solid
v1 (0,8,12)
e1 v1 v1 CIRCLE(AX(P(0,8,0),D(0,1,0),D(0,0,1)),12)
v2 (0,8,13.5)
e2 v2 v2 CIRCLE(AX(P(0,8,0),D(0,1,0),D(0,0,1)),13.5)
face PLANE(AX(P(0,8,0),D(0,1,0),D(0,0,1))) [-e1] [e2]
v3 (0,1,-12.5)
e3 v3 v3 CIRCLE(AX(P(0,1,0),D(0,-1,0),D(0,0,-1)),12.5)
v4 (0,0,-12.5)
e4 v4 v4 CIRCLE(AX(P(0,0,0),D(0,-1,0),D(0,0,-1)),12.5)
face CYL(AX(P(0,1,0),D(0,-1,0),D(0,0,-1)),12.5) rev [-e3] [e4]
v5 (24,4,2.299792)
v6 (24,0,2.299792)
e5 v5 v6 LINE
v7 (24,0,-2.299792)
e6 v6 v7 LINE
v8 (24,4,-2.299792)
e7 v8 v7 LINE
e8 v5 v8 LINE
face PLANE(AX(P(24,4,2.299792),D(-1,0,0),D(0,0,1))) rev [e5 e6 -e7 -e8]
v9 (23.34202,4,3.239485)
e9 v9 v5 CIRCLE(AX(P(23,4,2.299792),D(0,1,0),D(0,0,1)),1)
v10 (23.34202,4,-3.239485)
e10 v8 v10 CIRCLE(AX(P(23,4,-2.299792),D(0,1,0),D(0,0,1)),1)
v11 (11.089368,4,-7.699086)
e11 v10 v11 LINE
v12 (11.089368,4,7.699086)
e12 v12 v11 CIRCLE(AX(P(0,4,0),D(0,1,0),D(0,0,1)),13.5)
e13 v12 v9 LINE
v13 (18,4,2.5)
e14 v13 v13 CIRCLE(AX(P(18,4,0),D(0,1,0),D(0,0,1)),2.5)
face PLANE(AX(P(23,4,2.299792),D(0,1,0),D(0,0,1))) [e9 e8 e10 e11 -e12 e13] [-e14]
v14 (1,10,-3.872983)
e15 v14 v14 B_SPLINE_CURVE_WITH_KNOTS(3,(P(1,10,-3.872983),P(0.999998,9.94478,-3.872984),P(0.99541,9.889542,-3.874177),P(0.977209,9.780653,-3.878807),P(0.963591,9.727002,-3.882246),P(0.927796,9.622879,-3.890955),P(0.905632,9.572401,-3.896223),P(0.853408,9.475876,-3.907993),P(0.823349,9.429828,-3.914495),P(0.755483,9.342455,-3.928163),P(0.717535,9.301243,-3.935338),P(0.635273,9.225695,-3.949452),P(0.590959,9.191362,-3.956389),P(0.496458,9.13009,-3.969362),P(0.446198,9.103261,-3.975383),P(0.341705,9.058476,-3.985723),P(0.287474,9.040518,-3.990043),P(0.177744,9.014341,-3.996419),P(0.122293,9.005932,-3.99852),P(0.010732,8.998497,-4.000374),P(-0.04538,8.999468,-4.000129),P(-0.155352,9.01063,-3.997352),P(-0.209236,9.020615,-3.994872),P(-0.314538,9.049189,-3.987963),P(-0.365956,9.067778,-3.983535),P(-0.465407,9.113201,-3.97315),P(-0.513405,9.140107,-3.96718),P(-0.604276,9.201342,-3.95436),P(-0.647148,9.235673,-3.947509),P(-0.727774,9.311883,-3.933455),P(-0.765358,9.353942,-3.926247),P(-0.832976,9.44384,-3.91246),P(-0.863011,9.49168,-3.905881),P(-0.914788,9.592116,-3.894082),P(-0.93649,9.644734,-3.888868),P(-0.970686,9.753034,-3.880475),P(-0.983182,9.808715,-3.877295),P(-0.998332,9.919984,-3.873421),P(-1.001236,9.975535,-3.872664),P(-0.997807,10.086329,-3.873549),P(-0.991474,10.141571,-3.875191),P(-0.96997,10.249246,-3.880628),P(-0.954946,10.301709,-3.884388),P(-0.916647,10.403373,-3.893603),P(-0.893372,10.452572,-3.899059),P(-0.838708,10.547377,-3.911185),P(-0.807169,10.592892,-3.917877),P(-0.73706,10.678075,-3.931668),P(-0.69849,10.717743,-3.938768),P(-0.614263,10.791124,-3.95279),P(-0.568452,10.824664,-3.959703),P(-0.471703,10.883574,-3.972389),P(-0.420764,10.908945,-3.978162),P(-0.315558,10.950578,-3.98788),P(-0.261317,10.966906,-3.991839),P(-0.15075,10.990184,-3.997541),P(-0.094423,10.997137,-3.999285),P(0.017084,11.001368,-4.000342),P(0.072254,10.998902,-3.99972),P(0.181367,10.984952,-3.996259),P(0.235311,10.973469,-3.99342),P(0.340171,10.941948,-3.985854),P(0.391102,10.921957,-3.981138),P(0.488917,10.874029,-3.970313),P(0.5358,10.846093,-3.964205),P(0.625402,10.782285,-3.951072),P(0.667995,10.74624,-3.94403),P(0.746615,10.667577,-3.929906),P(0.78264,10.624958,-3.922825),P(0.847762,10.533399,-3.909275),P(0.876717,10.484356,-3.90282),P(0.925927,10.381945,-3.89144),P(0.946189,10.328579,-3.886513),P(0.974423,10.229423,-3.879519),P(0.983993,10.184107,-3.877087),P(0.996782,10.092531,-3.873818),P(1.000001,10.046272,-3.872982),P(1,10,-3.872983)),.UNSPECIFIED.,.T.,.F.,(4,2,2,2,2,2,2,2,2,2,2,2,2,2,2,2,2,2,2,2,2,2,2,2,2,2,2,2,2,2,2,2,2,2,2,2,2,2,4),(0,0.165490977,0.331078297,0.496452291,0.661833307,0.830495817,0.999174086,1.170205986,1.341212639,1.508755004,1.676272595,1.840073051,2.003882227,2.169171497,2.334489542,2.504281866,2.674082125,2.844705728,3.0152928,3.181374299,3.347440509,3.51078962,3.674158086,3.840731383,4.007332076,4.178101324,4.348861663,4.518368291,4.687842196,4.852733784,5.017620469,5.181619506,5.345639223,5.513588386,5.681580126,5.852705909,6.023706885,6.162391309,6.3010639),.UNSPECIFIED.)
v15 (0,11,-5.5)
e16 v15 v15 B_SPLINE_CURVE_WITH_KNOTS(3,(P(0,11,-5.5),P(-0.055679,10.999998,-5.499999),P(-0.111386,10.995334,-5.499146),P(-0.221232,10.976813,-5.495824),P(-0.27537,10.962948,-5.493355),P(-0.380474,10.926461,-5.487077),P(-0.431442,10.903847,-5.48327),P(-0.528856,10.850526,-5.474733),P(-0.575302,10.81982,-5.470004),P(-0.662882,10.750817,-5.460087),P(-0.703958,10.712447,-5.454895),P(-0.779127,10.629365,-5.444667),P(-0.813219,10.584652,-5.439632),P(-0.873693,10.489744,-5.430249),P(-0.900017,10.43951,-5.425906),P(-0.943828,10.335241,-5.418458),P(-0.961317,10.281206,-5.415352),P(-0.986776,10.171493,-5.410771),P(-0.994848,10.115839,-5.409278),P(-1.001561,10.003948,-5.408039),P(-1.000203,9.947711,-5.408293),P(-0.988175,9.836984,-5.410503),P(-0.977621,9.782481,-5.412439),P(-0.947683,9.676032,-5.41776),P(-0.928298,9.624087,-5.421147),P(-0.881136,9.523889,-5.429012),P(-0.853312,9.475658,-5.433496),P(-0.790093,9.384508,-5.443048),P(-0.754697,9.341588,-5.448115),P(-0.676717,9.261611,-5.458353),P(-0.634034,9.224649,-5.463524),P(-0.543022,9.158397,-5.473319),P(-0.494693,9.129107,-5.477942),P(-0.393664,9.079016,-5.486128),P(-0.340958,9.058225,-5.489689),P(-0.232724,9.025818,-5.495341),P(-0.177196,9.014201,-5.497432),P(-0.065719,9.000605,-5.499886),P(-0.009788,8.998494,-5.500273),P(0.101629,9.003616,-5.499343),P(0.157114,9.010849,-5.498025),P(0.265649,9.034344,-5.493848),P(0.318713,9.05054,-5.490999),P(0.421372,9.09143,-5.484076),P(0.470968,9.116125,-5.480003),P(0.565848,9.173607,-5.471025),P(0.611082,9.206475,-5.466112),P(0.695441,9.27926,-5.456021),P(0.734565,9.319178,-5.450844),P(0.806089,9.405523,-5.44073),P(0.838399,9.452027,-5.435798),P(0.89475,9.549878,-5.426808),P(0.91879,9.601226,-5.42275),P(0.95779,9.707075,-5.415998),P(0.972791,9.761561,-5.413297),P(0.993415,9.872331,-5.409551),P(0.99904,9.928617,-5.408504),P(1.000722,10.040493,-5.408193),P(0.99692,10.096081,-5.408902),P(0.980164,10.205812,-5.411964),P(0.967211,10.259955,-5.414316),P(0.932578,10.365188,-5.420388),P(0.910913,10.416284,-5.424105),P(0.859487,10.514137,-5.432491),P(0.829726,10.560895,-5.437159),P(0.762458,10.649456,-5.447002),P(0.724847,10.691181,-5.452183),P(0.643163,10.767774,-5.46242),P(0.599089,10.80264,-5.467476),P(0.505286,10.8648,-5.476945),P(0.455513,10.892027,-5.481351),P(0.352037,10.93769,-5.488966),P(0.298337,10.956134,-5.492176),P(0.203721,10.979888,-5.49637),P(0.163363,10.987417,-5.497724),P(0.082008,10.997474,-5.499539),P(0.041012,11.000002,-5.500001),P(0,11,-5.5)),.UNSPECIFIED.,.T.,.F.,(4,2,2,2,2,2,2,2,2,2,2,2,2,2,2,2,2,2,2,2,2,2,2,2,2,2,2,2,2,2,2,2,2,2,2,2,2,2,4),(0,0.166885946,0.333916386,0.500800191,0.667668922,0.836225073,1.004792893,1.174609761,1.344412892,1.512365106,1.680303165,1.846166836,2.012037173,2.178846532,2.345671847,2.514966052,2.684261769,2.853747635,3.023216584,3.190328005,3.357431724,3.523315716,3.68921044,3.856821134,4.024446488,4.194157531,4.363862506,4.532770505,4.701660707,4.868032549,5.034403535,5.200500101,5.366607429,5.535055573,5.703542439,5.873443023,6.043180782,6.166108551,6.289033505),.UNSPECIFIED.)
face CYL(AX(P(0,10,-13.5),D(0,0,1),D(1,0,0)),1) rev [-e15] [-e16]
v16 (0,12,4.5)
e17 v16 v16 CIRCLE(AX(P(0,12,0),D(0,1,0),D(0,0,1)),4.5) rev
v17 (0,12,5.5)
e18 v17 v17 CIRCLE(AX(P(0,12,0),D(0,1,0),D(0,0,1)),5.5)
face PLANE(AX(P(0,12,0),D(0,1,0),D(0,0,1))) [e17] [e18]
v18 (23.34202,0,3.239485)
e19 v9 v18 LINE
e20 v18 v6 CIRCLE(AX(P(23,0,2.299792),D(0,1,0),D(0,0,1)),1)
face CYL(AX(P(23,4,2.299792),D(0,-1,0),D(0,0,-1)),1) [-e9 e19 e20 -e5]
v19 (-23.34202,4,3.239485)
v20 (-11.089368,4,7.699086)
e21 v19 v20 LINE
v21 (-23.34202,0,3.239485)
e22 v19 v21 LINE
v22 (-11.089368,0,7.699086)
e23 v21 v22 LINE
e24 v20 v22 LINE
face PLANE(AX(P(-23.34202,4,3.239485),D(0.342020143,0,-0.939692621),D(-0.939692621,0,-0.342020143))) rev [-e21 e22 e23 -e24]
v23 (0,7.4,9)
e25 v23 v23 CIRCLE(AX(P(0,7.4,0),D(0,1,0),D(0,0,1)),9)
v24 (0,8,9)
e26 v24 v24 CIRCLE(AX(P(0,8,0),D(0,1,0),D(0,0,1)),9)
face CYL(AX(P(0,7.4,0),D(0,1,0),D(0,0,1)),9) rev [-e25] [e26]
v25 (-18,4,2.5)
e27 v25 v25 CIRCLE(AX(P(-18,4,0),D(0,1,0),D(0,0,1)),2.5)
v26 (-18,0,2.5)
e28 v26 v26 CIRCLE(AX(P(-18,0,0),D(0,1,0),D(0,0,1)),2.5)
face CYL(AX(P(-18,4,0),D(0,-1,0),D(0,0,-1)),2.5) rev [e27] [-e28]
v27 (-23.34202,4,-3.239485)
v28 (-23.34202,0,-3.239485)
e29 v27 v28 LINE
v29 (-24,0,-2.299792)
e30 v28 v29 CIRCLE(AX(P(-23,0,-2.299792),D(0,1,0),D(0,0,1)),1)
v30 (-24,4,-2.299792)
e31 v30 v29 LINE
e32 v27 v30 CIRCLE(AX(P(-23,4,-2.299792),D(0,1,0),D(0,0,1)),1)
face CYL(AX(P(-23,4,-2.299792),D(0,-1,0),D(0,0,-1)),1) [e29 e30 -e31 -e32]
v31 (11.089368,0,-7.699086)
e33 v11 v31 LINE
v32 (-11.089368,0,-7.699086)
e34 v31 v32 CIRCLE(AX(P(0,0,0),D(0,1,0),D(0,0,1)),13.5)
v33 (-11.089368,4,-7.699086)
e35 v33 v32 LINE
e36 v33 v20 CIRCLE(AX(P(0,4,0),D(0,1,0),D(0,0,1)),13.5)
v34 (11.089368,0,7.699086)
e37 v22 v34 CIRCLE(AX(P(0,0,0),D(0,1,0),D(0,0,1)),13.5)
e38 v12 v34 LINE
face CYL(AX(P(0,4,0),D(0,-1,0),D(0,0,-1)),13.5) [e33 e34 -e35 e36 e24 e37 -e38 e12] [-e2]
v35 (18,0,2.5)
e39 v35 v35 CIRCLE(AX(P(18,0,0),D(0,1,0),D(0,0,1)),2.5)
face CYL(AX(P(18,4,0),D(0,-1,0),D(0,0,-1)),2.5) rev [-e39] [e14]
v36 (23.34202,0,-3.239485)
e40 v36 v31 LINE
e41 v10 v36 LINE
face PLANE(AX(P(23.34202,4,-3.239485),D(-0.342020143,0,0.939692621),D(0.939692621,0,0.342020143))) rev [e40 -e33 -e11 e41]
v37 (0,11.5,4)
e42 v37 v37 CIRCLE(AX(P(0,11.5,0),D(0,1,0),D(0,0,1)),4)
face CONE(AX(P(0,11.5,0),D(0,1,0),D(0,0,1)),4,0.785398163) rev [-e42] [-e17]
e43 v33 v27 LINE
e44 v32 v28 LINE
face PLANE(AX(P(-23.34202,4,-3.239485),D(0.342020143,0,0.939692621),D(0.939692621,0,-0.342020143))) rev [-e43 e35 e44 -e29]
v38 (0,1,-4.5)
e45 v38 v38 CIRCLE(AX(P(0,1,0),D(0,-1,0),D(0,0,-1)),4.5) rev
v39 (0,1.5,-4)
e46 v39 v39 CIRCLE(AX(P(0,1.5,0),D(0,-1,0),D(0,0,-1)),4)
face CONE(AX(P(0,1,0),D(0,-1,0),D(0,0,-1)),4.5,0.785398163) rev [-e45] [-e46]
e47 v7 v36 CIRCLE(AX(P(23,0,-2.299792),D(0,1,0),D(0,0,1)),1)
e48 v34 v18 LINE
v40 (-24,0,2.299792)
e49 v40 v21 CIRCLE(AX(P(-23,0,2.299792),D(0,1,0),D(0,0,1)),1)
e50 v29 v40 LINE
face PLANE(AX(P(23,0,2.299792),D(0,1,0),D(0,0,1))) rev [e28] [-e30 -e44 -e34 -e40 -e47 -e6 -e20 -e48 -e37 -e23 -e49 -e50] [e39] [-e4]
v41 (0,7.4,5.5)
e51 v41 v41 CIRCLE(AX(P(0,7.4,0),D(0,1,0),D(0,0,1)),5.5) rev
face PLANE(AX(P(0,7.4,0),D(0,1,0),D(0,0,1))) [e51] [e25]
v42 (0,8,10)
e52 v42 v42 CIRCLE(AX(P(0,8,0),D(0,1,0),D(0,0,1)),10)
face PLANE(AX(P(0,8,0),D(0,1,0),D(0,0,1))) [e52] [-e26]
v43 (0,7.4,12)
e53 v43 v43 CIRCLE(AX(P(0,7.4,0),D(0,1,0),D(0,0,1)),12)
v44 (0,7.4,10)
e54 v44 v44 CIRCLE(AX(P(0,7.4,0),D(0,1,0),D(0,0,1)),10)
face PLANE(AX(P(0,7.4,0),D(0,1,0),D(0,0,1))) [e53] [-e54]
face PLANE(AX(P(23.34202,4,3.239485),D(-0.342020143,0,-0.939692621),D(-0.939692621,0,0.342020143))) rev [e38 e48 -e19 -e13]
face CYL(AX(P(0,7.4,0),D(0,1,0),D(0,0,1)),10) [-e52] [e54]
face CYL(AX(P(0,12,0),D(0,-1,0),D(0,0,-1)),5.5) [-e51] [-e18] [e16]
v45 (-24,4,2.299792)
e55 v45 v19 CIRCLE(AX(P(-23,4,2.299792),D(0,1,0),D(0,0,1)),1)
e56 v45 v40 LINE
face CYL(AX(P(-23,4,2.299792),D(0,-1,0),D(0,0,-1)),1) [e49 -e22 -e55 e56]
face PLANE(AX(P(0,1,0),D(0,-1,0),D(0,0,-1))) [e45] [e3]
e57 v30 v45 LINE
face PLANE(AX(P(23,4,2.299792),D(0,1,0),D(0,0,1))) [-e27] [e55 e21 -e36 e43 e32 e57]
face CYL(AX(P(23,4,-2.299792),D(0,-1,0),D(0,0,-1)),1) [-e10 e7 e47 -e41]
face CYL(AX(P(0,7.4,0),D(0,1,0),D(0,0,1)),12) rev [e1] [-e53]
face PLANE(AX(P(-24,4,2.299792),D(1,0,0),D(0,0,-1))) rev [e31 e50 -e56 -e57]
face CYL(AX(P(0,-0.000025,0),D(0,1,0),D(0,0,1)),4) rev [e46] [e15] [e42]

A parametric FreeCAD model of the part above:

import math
import FreeCAD as App
import Part
import Sketcher

V = App.Vector
Q = App.Units.Quantity


def edges_at(feature, points):
    """Names of the edges that pass closest to the given points."""
    edges = feature.Shape.Edges
    near = lambda p: min(range(len(edges)), key=lambda i: edges[i].distToShape(Part.Vertex(*p))[0])
    return sorted({f"Edge{near(p) + 1}" for p in points})

doc = App.newDocument("Part")
body = doc.addObject("PartDesign::Body", "Body")

# Sketch on XZ plane
sketch1 = body.newObject("Sketcher::SketchObject", "Sketch")
sketch1.AttachmentSupport = (doc.getObject("XZ_Plane"), [""])
sketch1.MapMode = "FlatFace"
sketch1.addGeometry(Part.LineSegment(V(24, 2.299792, 0), V(24, -2.299792, 0)), False)
sketch1.addGeometry(Part.ArcOfCircle(Part.Circle(V(23, -2.299792, 0), V(0, 0, 1), 1), math.radians(-70), math.radians(0)), False)
sketch1.addGeometry(Part.LineSegment(V(23.34202, -3.239485, 0), V(11.089368, -7.699086, 0)), False)
sketch1.addGeometry(Part.ArcOfCircle(Part.Circle(V(0, 0, 0), V(0, 0, 1), 13.5), math.radians(-145.228666), math.radians(-34.771334)), False)
sketch1.addGeometry(Part.LineSegment(V(-11.089368, -7.699086, 0), V(-23.34202, -3.239485, 0)), False)
sketch1.addGeometry(Part.ArcOfCircle(Part.Circle(V(-23, -2.299792, 0), V(0, 0, 1), 1), math.radians(-180), math.radians(-110)), False)
sketch1.addGeometry(Part.LineSegment(V(-24, -2.299792, 0), V(-24, 2.299792, 0)), False)
sketch1.addGeometry(Part.ArcOfCircle(Part.Circle(V(-23, 2.299792, 0), V(0, 0, 1), 1), math.radians(110), math.radians(180)), False)
sketch1.addGeometry(Part.LineSegment(V(-23.34202, 3.239485, 0), V(-11.089368, 7.699086, 0)), False)
sketch1.addGeometry(Part.ArcOfCircle(Part.Circle(V(0, 0, 0), V(0, 0, 1), 13.5), math.radians(34.771334), math.radians(145.228666)), False)
sketch1.addGeometry(Part.LineSegment(V(11.089368, 7.699086, 0), V(23.34202, 3.239485, 0)), False)
sketch1.addGeometry(Part.ArcOfCircle(Part.Circle(V(23, 2.299792, 0), V(0, 0, 1), 1), math.radians(0), math.radians(70)), False)
sketch1.addGeometry(Part.Circle(V(-18, 0, 0), V(0, 0, 1), 2.5), False)
sketch1.addGeometry(Part.Circle(V(18, 0, 0), V(0, 0, 1), 2.5), False)
sketch1.addConstraint(Sketcher.Constraint("Tangent", 0, 2, 1, 2))
sketch1.addConstraint(Sketcher.Constraint("Tangent", 1, 1, 2, 1))
sketch1.addConstraint(Sketcher.Constraint("Coincident", 2, 2, 3, 2))
sketch1.addConstraint(Sketcher.Constraint("Coincident", 3, 1, 4, 1))
sketch1.addConstraint(Sketcher.Constraint("Tangent", 4, 2, 5, 2))
sketch1.addConstraint(Sketcher.Constraint("Tangent", 5, 1, 6, 1))
sketch1.addConstraint(Sketcher.Constraint("Tangent", 6, 2, 7, 2))
sketch1.addConstraint(Sketcher.Constraint("Tangent", 7, 1, 8, 1))
sketch1.addConstraint(Sketcher.Constraint("Coincident", 8, 2, 9, 2))
sketch1.addConstraint(Sketcher.Constraint("Coincident", 9, 1, 10, 1))
sketch1.addConstraint(Sketcher.Constraint("Tangent", 10, 2, 11, 2))
sketch1.addConstraint(Sketcher.Constraint("Tangent", 11, 1, 0, 1))
sketch1.addConstraint(Sketcher.Constraint("Vertical", 0))
sketch1.addConstraint(Sketcher.Constraint("Vertical", 6))
sketch1.addConstraint(Sketcher.Constraint("Coincident", 3, 3, -1, 1))
sketch1.addConstraint(Sketcher.Constraint("Coincident", 9, 3, -1, 1))
sketch1.addConstraint(Sketcher.Constraint("Equal", 1, 5))
sketch1.addConstraint(Sketcher.Constraint("Equal", 5, 7))
sketch1.addConstraint(Sketcher.Constraint("Equal", 3, 9))
sketch1.addConstraint(Sketcher.Constraint("Equal", 7, 11))
sketch1.addConstraint(Sketcher.Constraint("Equal", 12, 13))
sketch1.addConstraint(Sketcher.Constraint("Symmetric", 1, 3, 7, 3, -1, 1))
sketch1.addConstraint(Sketcher.Constraint("Symmetric", 12, 3, 13, 3, -1, 1))
sketch1.addConstraint(Sketcher.Constraint("Symmetric", 4, 2, 10, 2, -1, 1))
sketch1.addConstraint(Sketcher.Constraint("Symmetric", 1, 1, 4, 2, -2))
sketch1.addConstraint(Sketcher.Constraint("PointOnObject", 12, 3, -1))
sketch1.addConstraint(Sketcher.Constraint("Parallel", 2, 8))
sketch1.addConstraint(Sketcher.Constraint("Diameter", 12, Q("5 mm")))
sketch1.addConstraint(Sketcher.Constraint("Radius", 1, Q("1 mm")))
sketch1.addConstraint(Sketcher.Constraint("Radius", 3, Q("13.5 mm")))
sketch1.addConstraint(Sketcher.Constraint("Angle", 2, Q("-160 deg")))
sketch1.addConstraint(Sketcher.Constraint("DistanceX", -1, 1, 1, 3, Q("23 mm")))
sketch1.addConstraint(Sketcher.Constraint("DistanceX", 12, 3, -1, 1, Q("18 mm")))
sketch1.addConstraint(Sketcher.Constraint("Distance", 2, Q("13.039 mm")))
pad1 = body.newObject("PartDesign::Pad", "Pad")
pad1.Profile = sketch1
pad1.Length = 4
pad1.Reversed = True

# Sketch on XZ plane
sketch2 = body.newObject("Sketcher::SketchObject", "Sketch001")
sketch2.AttachmentSupport = (doc.getObject("XZ_Plane"), [""])
sketch2.MapMode = "FlatFace"
sketch2.AttachmentOffset = App.Placement(V(0, 0, -4), App.Rotation())
sketch2.addGeometry(Part.Circle(V(0, 0, 0), V(0, 0, 1), 13.5), False)
sketch2.addConstraint(Sketcher.Constraint("Coincident", 0, 3, -1, 1))
sketch2.addConstraint(Sketcher.Constraint("Diameter", 0, Q("27 mm")))
pad2 = body.newObject("PartDesign::Pad", "Pad001")
pad2.Profile = sketch2
pad2.Length = 4
pad2.Reversed = True

# Sketch on XZ plane
sketch3 = body.newObject("Sketcher::SketchObject", "Sketch002")
sketch3.AttachmentSupport = (doc.getObject("XZ_Plane"), [""])
sketch3.MapMode = "FlatFace"
sketch3.AttachmentOffset = App.Placement(V(0, 0, -8), App.Rotation())
sketch3.addGeometry(Part.Circle(V(0, 0, 0), V(0, 0, 1), 5.5), False)
sketch3.addConstraint(Sketcher.Constraint("Coincident", 0, 3, -1, 1))
sketch3.addConstraint(Sketcher.Constraint("Diameter", 0, Q("11 mm")))
pad3 = body.newObject("PartDesign::Pad", "Pad002")
pad3.Profile = sketch3
pad3.Length = 4
pad3.Reversed = True

# Sketch on XZ plane
sketch4 = body.newObject("Sketcher::SketchObject", "Sketch003")
sketch4.AttachmentSupport = (doc.getObject("XZ_Plane"), [""])
sketch4.MapMode = "FlatFace"
sketch4.AttachmentOffset = App.Placement(V(0, 0, -12), App.Rotation())
sketch4.addGeometry(Part.Circle(V(0, 0, 0), V(0, 0, 1), 4), False)
sketch4.addConstraint(Sketcher.Constraint("Coincident", 0, 3, -1, 1))
sketch4.addConstraint(Sketcher.Constraint("Diameter", 0, Q("8 mm")))
pocket1 = body.newObject("PartDesign::Pocket", "Pocket")
pocket1.Profile = sketch4
pocket1.Type = "ThroughAll"
pocket1.Reversed = True

# Sketch on XZ plane
sketch5 = body.newObject("Sketcher::SketchObject", "Sketch004")
sketch5.AttachmentSupport = (doc.getObject("XZ_Plane"), [""])
sketch5.MapMode = "FlatFace"
sketch5.AttachmentOffset = App.Placement(V(0, 0, -8), App.Rotation())
sketch5.addGeometry(Part.Circle(V(0, 0, 0), V(0, 0, 1), 12), False)
sketch5.addGeometry(Part.Circle(V(0, 0, 0), V(0, 0, 1), 10), False)
sketch5.addGeometry(Part.Circle(V(0, 0, 0), V(0, 0, 1), 9), False)
sketch5.addGeometry(Part.Circle(V(0, 0, 0), V(0, 0, 1), 5.5), False)
sketch5.addConstraint(Sketcher.Constraint("Coincident", 0, 3, -1, 1))
sketch5.addConstraint(Sketcher.Constraint("Coincident", 1, 3, -1, 1))
sketch5.addConstraint(Sketcher.Constraint("Coincident", 2, 3, -1, 1))
sketch5.addConstraint(Sketcher.Constraint("Coincident", 3, 3, -1, 1))
sketch5.addConstraint(Sketcher.Constraint("Diameter", 0, Q("24 mm")))
sketch5.addConstraint(Sketcher.Constraint("Diameter", 1, Q("20 mm")))
sketch5.addConstraint(Sketcher.Constraint("Diameter", 2, Q("18 mm")))
sketch5.addConstraint(Sketcher.Constraint("Diameter", 3, Q("11 mm")))
pocket2 = body.newObject("PartDesign::Pocket", "Pocket001")
pocket2.Profile = sketch5
pocket2.Length = 0.6
pocket2.Reversed = True

# Sketch on XZ plane
sketch6 = body.newObject("Sketcher::SketchObject", "Sketch005")
sketch6.AttachmentSupport = (doc.getObject("XZ_Plane"), [""])
sketch6.MapMode = "FlatFace"
sketch6.addGeometry(Part.Circle(V(0, 0, 0), V(0, 0, 1), 12.5), False)
sketch6.addConstraint(Sketcher.Constraint("Coincident", 0, 3, -1, 1))
sketch6.addConstraint(Sketcher.Constraint("Diameter", 0, Q("25 mm")))
pocket3 = body.newObject("PartDesign::Pocket", "Pocket002")
pocket3.Profile = sketch6
pocket3.Length = 1

# Sketch on XY plane
sketch7 = body.newObject("Sketcher::SketchObject", "Sketch006")
sketch7.AttachmentSupport = (doc.getObject("XY_Plane"), [""])
sketch7.MapMode = "FlatFace"
sketch7.addGeometry(Part.Circle(V(0, 10, 0), V(0, 0, 1), 1), False)
sketch7.addConstraint(Sketcher.Constraint("PointOnObject", 0, 3, -2))
sketch7.addConstraint(Sketcher.Constraint("Diameter", 0, Q("2 mm")))
sketch7.addConstraint(Sketcher.Constraint("DistanceY", -1, 1, 0, 3, Q("10 mm")))
pocket4 = body.newObject("PartDesign::Pocket", "Pocket003")
pocket4.Profile = sketch7
pocket4.Type = "ThroughAll"
doc.recompute()

chamfer = body.newObject("PartDesign::Chamfer", "Chamfer")
chamfer.Base = (pocket4, edges_at(pocket4, [(-4, 12, 0), (-4, 1, 0)]))
chamfer.Size = 0.5

doc.recompute()
